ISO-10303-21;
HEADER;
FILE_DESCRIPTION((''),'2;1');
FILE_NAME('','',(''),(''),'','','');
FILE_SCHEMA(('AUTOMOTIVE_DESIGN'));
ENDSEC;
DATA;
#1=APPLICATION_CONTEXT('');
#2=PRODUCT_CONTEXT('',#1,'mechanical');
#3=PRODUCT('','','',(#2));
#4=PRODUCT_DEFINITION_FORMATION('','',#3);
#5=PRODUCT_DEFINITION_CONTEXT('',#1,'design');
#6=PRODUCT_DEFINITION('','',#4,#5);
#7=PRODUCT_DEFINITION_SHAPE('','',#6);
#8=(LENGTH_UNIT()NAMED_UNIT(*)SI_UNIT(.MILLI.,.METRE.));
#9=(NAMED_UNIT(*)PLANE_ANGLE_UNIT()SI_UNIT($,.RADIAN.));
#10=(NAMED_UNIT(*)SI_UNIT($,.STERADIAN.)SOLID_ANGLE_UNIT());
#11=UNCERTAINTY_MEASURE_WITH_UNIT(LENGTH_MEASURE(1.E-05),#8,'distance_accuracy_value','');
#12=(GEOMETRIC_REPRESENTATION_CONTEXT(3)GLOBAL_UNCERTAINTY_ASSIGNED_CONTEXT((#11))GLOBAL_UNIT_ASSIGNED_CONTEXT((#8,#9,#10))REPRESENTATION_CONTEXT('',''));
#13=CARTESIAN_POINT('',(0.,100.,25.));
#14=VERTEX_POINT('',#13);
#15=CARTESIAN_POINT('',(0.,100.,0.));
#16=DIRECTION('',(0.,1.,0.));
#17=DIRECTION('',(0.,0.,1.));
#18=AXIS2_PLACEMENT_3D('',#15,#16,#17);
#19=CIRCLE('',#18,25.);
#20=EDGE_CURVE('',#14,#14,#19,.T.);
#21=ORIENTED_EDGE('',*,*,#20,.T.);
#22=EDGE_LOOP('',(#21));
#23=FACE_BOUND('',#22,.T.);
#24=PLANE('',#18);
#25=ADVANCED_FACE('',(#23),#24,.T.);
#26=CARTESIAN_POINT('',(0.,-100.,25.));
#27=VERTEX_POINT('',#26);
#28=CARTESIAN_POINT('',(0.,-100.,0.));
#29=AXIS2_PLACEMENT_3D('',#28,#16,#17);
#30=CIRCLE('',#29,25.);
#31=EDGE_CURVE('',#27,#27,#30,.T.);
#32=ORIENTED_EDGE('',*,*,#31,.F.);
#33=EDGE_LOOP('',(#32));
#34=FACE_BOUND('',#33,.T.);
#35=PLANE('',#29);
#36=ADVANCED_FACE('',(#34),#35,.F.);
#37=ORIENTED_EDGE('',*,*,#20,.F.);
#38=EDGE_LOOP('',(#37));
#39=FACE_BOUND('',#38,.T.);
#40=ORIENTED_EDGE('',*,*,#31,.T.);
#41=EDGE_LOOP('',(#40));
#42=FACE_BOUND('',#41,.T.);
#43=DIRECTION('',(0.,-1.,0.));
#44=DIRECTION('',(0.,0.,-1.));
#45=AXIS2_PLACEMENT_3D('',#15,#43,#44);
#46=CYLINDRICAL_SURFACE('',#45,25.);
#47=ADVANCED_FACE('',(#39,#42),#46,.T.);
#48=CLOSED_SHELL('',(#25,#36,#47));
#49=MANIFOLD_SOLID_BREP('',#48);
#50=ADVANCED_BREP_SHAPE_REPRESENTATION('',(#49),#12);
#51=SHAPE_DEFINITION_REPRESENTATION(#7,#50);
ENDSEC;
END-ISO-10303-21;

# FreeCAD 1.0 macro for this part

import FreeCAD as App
import Part
import Sketcher
from FreeCAD import Vector

doc = App.newDocument("Part")
params = doc.addObject("Spreadsheet::Sheet", "Params")
for row, (alias, value) in enumerate([
    ("sketch1_diameter", "50 mm"),
    ("pad1_length", "200 mm"),
], start=1):
    params.set(f"A{row}", alias)
    params.set(f"B{row}", "=" + value)
    params.setAlias(f"B{row}", alias)

body = doc.addObject("PartDesign::Body", "Body")

sketch1 = body.newObject("Sketcher::SketchObject", "Sketch")
sketch1.AttachmentSupport = (doc.getObject("XZ_Plane"), [""])
sketch1.MapMode = "FlatFace"
sketch1.addGeometry(Part.Circle(Vector(0, 0, 0), Vector(0, 0, 1), 25), False)
sketch1.addConstraint([
    Sketcher.Constraint("Coincident", 0, 3, -1, 1),
    Sketcher.Constraint("Diameter", 0, 50.0),
])
sketch1.setExpression("Constraints[1]", "Params.sketch1_diameter")
pad1 = body.newObject("PartDesign::Pad", "Pad")
pad1.Profile = sketch1
pad1.setExpression("Length", "Params.pad1_length")
pad1.Midplane = True

doc.recompute()
